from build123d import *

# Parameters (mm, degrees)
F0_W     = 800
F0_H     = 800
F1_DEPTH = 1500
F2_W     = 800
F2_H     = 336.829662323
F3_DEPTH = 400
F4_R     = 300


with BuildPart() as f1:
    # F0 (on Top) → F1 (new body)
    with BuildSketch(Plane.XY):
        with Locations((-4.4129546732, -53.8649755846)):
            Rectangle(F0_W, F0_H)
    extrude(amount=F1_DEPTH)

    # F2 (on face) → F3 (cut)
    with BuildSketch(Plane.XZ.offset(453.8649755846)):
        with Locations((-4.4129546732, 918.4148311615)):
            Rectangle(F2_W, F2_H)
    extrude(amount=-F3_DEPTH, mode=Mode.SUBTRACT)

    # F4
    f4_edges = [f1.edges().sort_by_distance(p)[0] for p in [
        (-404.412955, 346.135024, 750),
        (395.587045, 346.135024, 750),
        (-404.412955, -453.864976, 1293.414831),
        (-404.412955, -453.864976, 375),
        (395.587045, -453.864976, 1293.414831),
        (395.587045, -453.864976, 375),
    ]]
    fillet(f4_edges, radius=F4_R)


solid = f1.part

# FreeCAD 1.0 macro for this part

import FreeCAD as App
import Part
import Sketcher

V = App.Vector


def edges_at(feature, points):
    """Names of the edges that pass closest to the given points."""
    edges = feature.Shape.Edges
    near = lambda p: min(range(len(edges)), key=lambda i: edges[i].distToShape(Part.Vertex(*p))[0])
    return sorted({f"Edge{near(p) + 1}" for p in points})


def add_polygon(sketch, points):
    """Adds a closed chain of lines whose ends are joined by coincident constraints."""
    first, n = sketch.GeometryCount, len(points)
    for a, b in zip(points, points[1:] + points[:1]):
        sketch.addGeometry(Part.LineSegment(App.Vector(*a, 0), App.Vector(*b, 0)), False)
    for i in range(n):
        sketch.addConstraint(Sketcher.Constraint("Coincident", first + i, 2, first + (i + 1) % n, 1))

doc = App.newDocument("Part")
body = doc.addObject("PartDesign::Body", "Body")

# Sketch on XY plane
sketch1 = body.newObject("Sketcher::SketchObject", "Sketch")
sketch1.AttachmentSupport = (doc.getObject("XY_Plane"), [""])
sketch1.MapMode = "FlatFace"
add_polygon(sketch1, [(-404, 346), (-404, -454), (396, -454), (396, 346)])  # lines 0-3
sketch1.addConstraint([
    Sketcher.Constraint("Vertical", 0),
    Sketcher.Constraint("Horizontal", 1),
    Sketcher.Constraint("Vertical", 2),
    Sketcher.Constraint("Horizontal", 3),
    Sketcher.Constraint("Equal", 3, 0),
    Sketcher.Constraint("DistanceX", 1, 1, 1, 2, 800.0),
    Sketcher.Constraint("DistanceX", 0, 2, -1, 1, 404.412955),
    Sketcher.Constraint("DistanceY", 0, 2, -1, 1, 453.864976),
])
pad1 = body.newObject("PartDesign::Pad", "Pad")
pad1.Profile = sketch1
pad1.Length = 1500

# Sketch on XZ plane
sketch2 = body.newObject("Sketcher::SketchObject", "Sketch001")
sketch2.AttachmentSupport = (doc.getObject("XZ_Plane"), [""])
sketch2.MapMode = "FlatFace"
sketch2.AttachmentOffset = App.Placement(V(0, 0, 453.864976), App.Rotation())
add_polygon(sketch2, [(-404, 1087), (-404, 750), (396, 750), (396, 1087)])  # lines 0-3
sketch2.addConstraint([
    Sketcher.Constraint("Vertical", 0),
    Sketcher.Constraint("Horizontal", 1),
    Sketcher.Constraint("Vertical", 2),
    Sketcher.Constraint("Horizontal", 3),
    Sketcher.Constraint("DistanceX", 1, 1, 1, 2, 800.0),
    Sketcher.Constraint("DistanceY", -1, 1, 0, 2, 750.0),
    Sketcher.Constraint("DistanceY", 0, 2, 0, 1, 336.829662),
    Sketcher.Constraint("DistanceX", 0, 2, -1, 1, 404.412955),
])
pocket1 = body.newObject("PartDesign::Pocket", "Pocket")
pocket1.Profile = sketch2
pocket1.Length = 400
doc.recompute()

fillet = body.newObject("PartDesign::Fillet", "Fillet")
fillet.Base = (pocket1, edges_at(pocket1, [
    (-404.413, 346.135, 750),
    (395.587, 346.135, 750),
    (-404.413, -453.865, 1293.415),
    (-404.413, -453.865, 375),
    (395.587, -453.865, 1293.415),
    (395.587, -453.865, 375),
]))
fillet.Radius = 300

doc.recompute()
